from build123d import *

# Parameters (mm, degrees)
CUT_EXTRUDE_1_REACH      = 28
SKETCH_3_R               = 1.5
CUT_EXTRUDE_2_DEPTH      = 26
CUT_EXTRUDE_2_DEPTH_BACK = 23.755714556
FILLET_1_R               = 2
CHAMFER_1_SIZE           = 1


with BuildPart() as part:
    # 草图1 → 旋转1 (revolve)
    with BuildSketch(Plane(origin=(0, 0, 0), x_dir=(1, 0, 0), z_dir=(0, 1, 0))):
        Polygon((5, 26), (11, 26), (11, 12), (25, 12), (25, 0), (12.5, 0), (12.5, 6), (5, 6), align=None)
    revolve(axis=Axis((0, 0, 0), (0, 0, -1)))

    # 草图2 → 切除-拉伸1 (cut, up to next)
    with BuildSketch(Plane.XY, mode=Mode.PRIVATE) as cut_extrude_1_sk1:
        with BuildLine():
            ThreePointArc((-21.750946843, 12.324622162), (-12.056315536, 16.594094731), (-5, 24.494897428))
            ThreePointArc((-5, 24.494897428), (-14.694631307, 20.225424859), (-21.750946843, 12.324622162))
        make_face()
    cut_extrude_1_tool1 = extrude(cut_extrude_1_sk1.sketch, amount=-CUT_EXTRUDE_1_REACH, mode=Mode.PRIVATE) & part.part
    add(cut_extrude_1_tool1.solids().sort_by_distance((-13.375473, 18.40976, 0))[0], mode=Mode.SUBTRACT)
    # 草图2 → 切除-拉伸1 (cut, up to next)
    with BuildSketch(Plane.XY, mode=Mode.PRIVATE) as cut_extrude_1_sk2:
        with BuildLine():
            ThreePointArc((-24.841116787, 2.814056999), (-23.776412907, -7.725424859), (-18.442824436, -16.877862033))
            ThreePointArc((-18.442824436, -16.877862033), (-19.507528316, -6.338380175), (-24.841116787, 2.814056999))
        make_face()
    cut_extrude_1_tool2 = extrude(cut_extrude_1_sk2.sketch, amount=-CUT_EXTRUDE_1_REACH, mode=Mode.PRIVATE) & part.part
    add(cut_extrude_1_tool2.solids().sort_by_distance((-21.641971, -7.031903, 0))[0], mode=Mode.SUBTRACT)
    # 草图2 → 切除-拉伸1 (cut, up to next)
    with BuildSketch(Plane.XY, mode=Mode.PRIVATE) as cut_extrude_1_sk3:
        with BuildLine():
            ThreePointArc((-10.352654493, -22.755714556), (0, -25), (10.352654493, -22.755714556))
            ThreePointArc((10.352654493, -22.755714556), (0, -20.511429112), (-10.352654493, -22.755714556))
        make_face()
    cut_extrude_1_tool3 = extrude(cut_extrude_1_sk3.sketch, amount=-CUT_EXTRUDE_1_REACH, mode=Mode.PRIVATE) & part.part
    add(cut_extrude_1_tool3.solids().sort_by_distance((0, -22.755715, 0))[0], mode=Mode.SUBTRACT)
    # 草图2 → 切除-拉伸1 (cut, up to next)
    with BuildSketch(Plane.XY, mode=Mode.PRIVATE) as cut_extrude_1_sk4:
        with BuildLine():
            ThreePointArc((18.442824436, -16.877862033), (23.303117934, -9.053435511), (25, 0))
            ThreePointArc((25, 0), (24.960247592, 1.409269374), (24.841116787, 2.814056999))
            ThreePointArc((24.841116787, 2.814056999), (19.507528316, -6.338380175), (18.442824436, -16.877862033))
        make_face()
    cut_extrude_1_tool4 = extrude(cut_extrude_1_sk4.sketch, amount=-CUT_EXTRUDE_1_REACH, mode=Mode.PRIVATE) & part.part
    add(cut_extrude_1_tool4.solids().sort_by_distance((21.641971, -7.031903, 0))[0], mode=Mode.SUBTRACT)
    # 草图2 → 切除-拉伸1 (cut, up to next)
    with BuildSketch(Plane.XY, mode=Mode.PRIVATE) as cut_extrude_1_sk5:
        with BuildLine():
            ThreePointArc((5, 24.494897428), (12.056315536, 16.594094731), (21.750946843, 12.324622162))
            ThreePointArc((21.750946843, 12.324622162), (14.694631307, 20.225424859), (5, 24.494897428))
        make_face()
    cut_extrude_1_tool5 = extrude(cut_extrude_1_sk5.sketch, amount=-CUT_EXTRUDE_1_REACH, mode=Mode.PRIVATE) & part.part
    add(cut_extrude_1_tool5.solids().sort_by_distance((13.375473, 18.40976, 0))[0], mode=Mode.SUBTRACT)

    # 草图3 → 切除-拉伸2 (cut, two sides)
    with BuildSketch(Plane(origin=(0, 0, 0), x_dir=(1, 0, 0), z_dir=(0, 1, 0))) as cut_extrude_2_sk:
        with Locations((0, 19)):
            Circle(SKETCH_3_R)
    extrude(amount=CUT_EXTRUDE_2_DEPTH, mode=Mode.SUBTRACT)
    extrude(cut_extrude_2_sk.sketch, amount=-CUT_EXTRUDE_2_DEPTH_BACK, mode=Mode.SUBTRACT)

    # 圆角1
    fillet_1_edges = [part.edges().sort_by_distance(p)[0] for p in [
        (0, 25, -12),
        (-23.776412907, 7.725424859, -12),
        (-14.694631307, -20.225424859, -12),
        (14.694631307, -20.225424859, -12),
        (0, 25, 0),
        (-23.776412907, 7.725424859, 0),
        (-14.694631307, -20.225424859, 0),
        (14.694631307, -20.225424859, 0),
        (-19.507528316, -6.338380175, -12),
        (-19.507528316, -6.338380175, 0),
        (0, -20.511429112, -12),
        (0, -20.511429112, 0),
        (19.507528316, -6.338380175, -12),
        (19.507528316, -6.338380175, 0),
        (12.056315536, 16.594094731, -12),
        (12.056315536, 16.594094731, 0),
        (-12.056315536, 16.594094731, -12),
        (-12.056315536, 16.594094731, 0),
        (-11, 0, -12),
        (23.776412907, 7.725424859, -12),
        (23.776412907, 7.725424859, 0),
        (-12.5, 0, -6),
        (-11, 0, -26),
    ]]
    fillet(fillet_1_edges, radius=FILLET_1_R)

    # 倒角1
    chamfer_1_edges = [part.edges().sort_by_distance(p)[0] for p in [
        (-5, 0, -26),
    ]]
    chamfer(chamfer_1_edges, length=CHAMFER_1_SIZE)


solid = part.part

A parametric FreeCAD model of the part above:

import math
import FreeCAD as App
import Part
import Sketcher
from FreeCAD import Vector


def edges_at(feature, points):
    """Names of the edges that pass closest to the given points."""
    edges = feature.Shape.Edges
    near = lambda p: min(range(len(edges)), key=lambda i: edges[i].distToShape(Part.Vertex(*p))[0])
    return sorted({f"Edge{near(p) + 1}" for p in points})


def add_polygon(sketch, points):
    """Adds a closed chain of lines whose ends are joined by coincident constraints."""
    first, n = sketch.GeometryCount, len(points)
    for a, b in zip(points, points[1:] + points[:1]):
        sketch.addGeometry(Part.LineSegment(App.Vector(*a, 0), App.Vector(*b, 0)), False)
    for i in range(n):
        sketch.addConstraint(Sketcher.Constraint("Coincident", first + i, 2, first + (i + 1) % n, 1))

doc = App.newDocument("Part")
body = doc.addObject("PartDesign::Body", "Body")

sketch1 = body.newObject("Sketcher::SketchObject", "Sketch")
sketch1.AttachmentSupport = (doc.getObject("XZ_Plane"), [""])
sketch1.MapMode = "FlatFace"
add_polygon(sketch1, [(11, -26), (5, -26), (5, -6), (12.5, -6), (12.5, 0), (25, 0), (25, -12), (11, -12)])
sketch1.addConstraint(Sketcher.Constraint("Horizontal", 0))
sketch1.addConstraint(Sketcher.Constraint("Vertical", 1))
sketch1.addConstraint(Sketcher.Constraint("Horizontal", 2))
sketch1.addConstraint(Sketcher.Constraint("Vertical", 3))
sketch1.addConstraint(Sketcher.Constraint("Horizontal", 4))
sketch1.addConstraint(Sketcher.Constraint("Vertical", 5))
sketch1.addConstraint(Sketcher.Constraint("Horizontal", 6))
sketch1.addConstraint(Sketcher.Constraint("Vertical", 7))
sketch1.addConstraint(Sketcher.Constraint("PointOnObject", 3, 2, -1))
sketch1.addConstraint(Sketcher.Constraint("Equal", 0, 3))
sketch1.addConstraint(Sketcher.Constraint("Equal", 6, 7))
sketch1.addConstraint(Sketcher.Constraint("DistanceX", 0, 2, 0, 1, 6.0))
sketch1.addConstraint(Sketcher.Constraint("DistanceX", 6, 2, 6, 1, 14.0))
sketch1.addConstraint(Sketcher.Constraint("DistanceY", 1, 1, 1, 2, 20.0))
sketch1.addConstraint(Sketcher.Constraint("DistanceX", 2, 1, 2, 2, 7.5))
sketch1.addConstraint(Sketcher.Constraint("DistanceX", -1, 1, 0, 2, 5.0))
revolution = body.newObject("PartDesign::Revolution", "Revolution")
revolution.Profile = sketch1
revolution.ReferenceAxis = (sketch1, ["V_Axis"])
revolution.Angle = 360

sketch2 = body.newObject("Sketcher::SketchObject", "Sketch001")
sketch2.AttachmentSupport = (doc.getObject("XY_Plane"), [""])
sketch2.MapMode = "FlatFace"
sketch2.addGeometry(Part.ArcOfCircle(Part.Circle(Vector(-26.750947, 36.81952, 0), Vector(0, 0, 1), 25), math.radians(-78.463041), math.radians(-29.536959)), False)
sketch2.addGeometry(Part.ArcOfCircle(Part.Circle(Vector(0, 0, 0), Vector(0, 0, 1), 25), math.radians(101.536959), math.radians(150.463041)), False)
sketch2.addConstraint(Sketcher.Constraint("Coincident", 0, 1, 1, 2))
sketch2.addConstraint(Sketcher.Constraint("Coincident", 1, 1, 0, 2))
sketch2.addConstraint(Sketcher.Constraint("Coincident", 1, 3, -1, 1))
sketch2.addConstraint(Sketcher.Constraint("Equal", 0, 1))
sketch2.addConstraint(Sketcher.Constraint("Radius", 0, 25.0))
sketch2.addConstraint(Sketcher.Constraint("DistanceX", 1, 1, -1, 1, 5.0))
sketch2.addConstraint(Sketcher.Constraint("DistanceY", -1, 1, 0, 3, 36.81952))
pocket1 = body.newObject("PartDesign::Pocket", "Pocket")
pocket1.Profile = sketch2
pocket1.Type = "UpToFirst"

sketch3 = body.newObject("Sketcher::SketchObject", "Sketch002")
sketch3.AttachmentSupport = (doc.getObject("XY_Plane"), [""])
sketch3.MapMode = "FlatFace"
sketch3.addGeometry(Part.ArcOfCircle(Part.Circle(Vector(0, 0, 0), Vector(0, 0, 1), 25), math.radians(173.536959), math.radians(222.463041)), False)
sketch3.addGeometry(Part.ArcOfCircle(Part.Circle(Vector(-43.283941, -14.063805, 0), Vector(0, 0, 1), 25), math.radians(-6.463041), math.radians(42.463041)), False)
sketch3.addConstraint(Sketcher.Constraint("Coincident", 0, 1, 1, 2))
sketch3.addConstraint(Sketcher.Constraint("Coincident", 1, 1, 0, 2))
sketch3.addConstraint(Sketcher.Constraint("Coincident", 0, 3, -1, 1))
sketch3.addConstraint(Sketcher.Constraint("Equal", 0, 1))
sketch3.addConstraint(Sketcher.Constraint("Radius", 0, 25.0))
sketch3.addConstraint(Sketcher.Constraint("DistanceX", 1, 3, -1, 1, 43.283941))
sketch3.addConstraint(Sketcher.Constraint("DistanceY", 1, 1, 0, 1, 19.691919))
pocket2 = body.newObject("PartDesign::Pocket", "Pocket001")
pocket2.Profile = sketch3
pocket2.Type = "UpToFirst"

sketch4 = body.newObject("Sketcher::SketchObject", "Sketch003")
sketch4.AttachmentSupport = (doc.getObject("XY_Plane"), [""])
sketch4.MapMode = "FlatFace"
sketch4.addGeometry(Part.ArcOfCircle(Part.Circle(Vector(0, 0, 0), Vector(0, 0, 1), 25), math.radians(-114.463041), math.radians(-65.536959)), False)
sketch4.addGeometry(Part.ArcOfCircle(Part.Circle(Vector(0, -45.511429, 0), Vector(0, 0, 1), 25), math.radians(65.536959), math.radians(114.463041)), False)
sketch4.addConstraint(Sketcher.Constraint("Coincident", 0, 1, 1, 2))
sketch4.addConstraint(Sketcher.Constraint("Coincident", 1, 1, 0, 2))
sketch4.addConstraint(Sketcher.Constraint("Coincident", 0, 3, -1, 1))
sketch4.addConstraint(Sketcher.Constraint("Equal", 0, 1))
sketch4.addConstraint(Sketcher.Constraint("PointOnObject", 1, 3, -2))
sketch4.addConstraint(Sketcher.Constraint("Radius", 0, 25.0))
sketch4.addConstraint(Sketcher.Constraint("DistanceY", 1, 3, -1, 1, 45.511429))
pocket3 = body.newObject("PartDesign::Pocket", "Pocket002")
pocket3.Profile = sketch4
pocket3.Type = "UpToFirst"

sketch5 = body.newObject("Sketcher::SketchObject", "Sketch004")
sketch5.AttachmentSupport = (doc.getObject("XY_Plane"), [""])
sketch5.MapMode = "FlatFace"
sketch5.addGeometry(Part.ArcOfCircle(Part.Circle(Vector(0, 0, 0), Vector(0, 0, 1), 25), math.radians(-42.463041), math.radians(0)), False)
sketch5.addGeometry(Part.ArcOfCircle(Part.Circle(Vector(0, 0, 0), Vector(0, 0, 1), 25), math.radians(0), math.radians(6.463041)), False)
sketch5.addGeometry(Part.ArcOfCircle(Part.Circle(Vector(43.283941, -14.063805, 0), Vector(0, 0, 1), 25), math.radians(137.536959), math.radians(186.463041)), False)
sketch5.addConstraint(Sketcher.Constraint("Tangent", 0, 2, 1, 1))
sketch5.addConstraint(Sketcher.Constraint("Coincident", 1, 2, 2, 1))
sketch5.addConstraint(Sketcher.Constraint("Coincident", 2, 2, 0, 1))
sketch5.addConstraint(Sketcher.Constraint("Coincident", 0, 3, -1, 1))
sketch5.addConstraint(Sketcher.Constraint("Equal", 0, 1))
sketch5.addConstraint(Sketcher.Constraint("Equal", 1, 2))
sketch5.addConstraint(Sketcher.Constraint("PointOnObject", 0, 2, -1))
sketch5.addConstraint(Sketcher.Constraint("Radius", 0, 25.0))
sketch5.addConstraint(Sketcher.Constraint("DistanceX", -1, 1, 2, 3, 43.283941))
sketch5.addConstraint(Sketcher.Constraint("DistanceY", 2, 2, 1, 2, 19.691919))
pocket4 = body.newObject("PartDesign::Pocket", "Pocket003")
pocket4.Profile = sketch5
pocket4.Type = "UpToFirst"

sketch6 = body.newObject("Sketcher::SketchObject", "Sketch005")
sketch6.AttachmentSupport = (doc.getObject("XY_Plane"), [""])
sketch6.MapMode = "FlatFace"
sketch6.addGeometry(Part.ArcOfCircle(Part.Circle(Vector(26.750947, 36.81952, 0), Vector(0, 0, 1), 25), math.radians(-150.463041), math.radians(-101.536959)), False)
sketch6.addGeometry(Part.ArcOfCircle(Part.Circle(Vector(0, 0, 0), Vector(0, 0, 1), 25), math.radians(29.536959), math.radians(78.463041)), False)
sketch6.addConstraint(Sketcher.Constraint("Coincident", 0, 1, 1, 2))
sketch6.addConstraint(Sketcher.Constraint("Coincident", 1, 1, 0, 2))
sketch6.addConstraint(Sketcher.Constraint("Coincident", 1, 3, -1, 1))
sketch6.addConstraint(Sketcher.Constraint("Equal", 0, 1))
sketch6.addConstraint(Sketcher.Constraint("Radius", 0, 25.0))
sketch6.addConstraint(Sketcher.Constraint("DistanceX", -1, 1, 0, 1, 5.0))
sketch6.addConstraint(Sketcher.Constraint("DistanceY", -1, 1, 0, 3, 36.81952))
pocket5 = body.newObject("PartDesign::Pocket", "Pocket004")
pocket5.Profile = sketch6
pocket5.Type = "UpToFirst"

sketch7 = body.newObject("Sketcher::SketchObject", "Sketch006")
sketch7.AttachmentSupport = (doc.getObject("XZ_Plane"), [""])
sketch7.MapMode = "FlatFace"
sketch7.addGeometry(Part.Circle(Vector(0, -19, 0), Vector(0, 0, 1), 1.5), False)
sketch7.addConstraint(Sketcher.Constraint("PointOnObject", 0, 3, -2))
sketch7.addConstraint(Sketcher.Constraint("Diameter", 0, 3.0))
sketch7.addConstraint(Sketcher.Constraint("DistanceY", 0, 3, -1, 1, 19.0))
pocket6 = body.newObject("PartDesign::Pocket", "Pocket005")
pocket6.Profile = sketch7
pocket6.Type = "ThroughAll"
pocket6.Midplane = True
doc.recompute()

fillet = body.newObject("PartDesign::Fillet", "Fillet")
fillet.Base = (pocket6, edges_at(pocket6, [
    (0, 25, -12),
    (-23.776, 7.725, -12),
    (-14.695, -20.225, -12),
    (14.695, -20.225, -12),
    (0, 25, 0),
    (-23.776, 7.725, 0),
    (-14.695, -20.225, 0),
    (14.695, -20.225, 0),
    (-19.508, -6.338, -12),
    (-19.508, -6.338, 0),
    (0, -20.511, -12),
    (0, -20.511, 0),
    (19.508, -6.338, -12),
    (19.508, -6.338, 0),
    (12.056, 16.594, -12),
    (12.056, 16.594, 0),
    (-12.056, 16.594, -12),
    (-12.056, 16.594, 0),
    (-11, 0, -12),
    (23.776, 7.725, -12),
    (23.776, 7.725, 0),
    (-12.5, 0, -6),
    (-11, 0, -26),
]))
fillet.Radius = 2
doc.recompute()

chamfer = body.newObject("PartDesign::Chamfer", "Chamfer")
chamfer.Base = (fillet, edges_at(fillet, [(-5, 0, -26)]))
chamfer.Size = 1

doc.recompute()
